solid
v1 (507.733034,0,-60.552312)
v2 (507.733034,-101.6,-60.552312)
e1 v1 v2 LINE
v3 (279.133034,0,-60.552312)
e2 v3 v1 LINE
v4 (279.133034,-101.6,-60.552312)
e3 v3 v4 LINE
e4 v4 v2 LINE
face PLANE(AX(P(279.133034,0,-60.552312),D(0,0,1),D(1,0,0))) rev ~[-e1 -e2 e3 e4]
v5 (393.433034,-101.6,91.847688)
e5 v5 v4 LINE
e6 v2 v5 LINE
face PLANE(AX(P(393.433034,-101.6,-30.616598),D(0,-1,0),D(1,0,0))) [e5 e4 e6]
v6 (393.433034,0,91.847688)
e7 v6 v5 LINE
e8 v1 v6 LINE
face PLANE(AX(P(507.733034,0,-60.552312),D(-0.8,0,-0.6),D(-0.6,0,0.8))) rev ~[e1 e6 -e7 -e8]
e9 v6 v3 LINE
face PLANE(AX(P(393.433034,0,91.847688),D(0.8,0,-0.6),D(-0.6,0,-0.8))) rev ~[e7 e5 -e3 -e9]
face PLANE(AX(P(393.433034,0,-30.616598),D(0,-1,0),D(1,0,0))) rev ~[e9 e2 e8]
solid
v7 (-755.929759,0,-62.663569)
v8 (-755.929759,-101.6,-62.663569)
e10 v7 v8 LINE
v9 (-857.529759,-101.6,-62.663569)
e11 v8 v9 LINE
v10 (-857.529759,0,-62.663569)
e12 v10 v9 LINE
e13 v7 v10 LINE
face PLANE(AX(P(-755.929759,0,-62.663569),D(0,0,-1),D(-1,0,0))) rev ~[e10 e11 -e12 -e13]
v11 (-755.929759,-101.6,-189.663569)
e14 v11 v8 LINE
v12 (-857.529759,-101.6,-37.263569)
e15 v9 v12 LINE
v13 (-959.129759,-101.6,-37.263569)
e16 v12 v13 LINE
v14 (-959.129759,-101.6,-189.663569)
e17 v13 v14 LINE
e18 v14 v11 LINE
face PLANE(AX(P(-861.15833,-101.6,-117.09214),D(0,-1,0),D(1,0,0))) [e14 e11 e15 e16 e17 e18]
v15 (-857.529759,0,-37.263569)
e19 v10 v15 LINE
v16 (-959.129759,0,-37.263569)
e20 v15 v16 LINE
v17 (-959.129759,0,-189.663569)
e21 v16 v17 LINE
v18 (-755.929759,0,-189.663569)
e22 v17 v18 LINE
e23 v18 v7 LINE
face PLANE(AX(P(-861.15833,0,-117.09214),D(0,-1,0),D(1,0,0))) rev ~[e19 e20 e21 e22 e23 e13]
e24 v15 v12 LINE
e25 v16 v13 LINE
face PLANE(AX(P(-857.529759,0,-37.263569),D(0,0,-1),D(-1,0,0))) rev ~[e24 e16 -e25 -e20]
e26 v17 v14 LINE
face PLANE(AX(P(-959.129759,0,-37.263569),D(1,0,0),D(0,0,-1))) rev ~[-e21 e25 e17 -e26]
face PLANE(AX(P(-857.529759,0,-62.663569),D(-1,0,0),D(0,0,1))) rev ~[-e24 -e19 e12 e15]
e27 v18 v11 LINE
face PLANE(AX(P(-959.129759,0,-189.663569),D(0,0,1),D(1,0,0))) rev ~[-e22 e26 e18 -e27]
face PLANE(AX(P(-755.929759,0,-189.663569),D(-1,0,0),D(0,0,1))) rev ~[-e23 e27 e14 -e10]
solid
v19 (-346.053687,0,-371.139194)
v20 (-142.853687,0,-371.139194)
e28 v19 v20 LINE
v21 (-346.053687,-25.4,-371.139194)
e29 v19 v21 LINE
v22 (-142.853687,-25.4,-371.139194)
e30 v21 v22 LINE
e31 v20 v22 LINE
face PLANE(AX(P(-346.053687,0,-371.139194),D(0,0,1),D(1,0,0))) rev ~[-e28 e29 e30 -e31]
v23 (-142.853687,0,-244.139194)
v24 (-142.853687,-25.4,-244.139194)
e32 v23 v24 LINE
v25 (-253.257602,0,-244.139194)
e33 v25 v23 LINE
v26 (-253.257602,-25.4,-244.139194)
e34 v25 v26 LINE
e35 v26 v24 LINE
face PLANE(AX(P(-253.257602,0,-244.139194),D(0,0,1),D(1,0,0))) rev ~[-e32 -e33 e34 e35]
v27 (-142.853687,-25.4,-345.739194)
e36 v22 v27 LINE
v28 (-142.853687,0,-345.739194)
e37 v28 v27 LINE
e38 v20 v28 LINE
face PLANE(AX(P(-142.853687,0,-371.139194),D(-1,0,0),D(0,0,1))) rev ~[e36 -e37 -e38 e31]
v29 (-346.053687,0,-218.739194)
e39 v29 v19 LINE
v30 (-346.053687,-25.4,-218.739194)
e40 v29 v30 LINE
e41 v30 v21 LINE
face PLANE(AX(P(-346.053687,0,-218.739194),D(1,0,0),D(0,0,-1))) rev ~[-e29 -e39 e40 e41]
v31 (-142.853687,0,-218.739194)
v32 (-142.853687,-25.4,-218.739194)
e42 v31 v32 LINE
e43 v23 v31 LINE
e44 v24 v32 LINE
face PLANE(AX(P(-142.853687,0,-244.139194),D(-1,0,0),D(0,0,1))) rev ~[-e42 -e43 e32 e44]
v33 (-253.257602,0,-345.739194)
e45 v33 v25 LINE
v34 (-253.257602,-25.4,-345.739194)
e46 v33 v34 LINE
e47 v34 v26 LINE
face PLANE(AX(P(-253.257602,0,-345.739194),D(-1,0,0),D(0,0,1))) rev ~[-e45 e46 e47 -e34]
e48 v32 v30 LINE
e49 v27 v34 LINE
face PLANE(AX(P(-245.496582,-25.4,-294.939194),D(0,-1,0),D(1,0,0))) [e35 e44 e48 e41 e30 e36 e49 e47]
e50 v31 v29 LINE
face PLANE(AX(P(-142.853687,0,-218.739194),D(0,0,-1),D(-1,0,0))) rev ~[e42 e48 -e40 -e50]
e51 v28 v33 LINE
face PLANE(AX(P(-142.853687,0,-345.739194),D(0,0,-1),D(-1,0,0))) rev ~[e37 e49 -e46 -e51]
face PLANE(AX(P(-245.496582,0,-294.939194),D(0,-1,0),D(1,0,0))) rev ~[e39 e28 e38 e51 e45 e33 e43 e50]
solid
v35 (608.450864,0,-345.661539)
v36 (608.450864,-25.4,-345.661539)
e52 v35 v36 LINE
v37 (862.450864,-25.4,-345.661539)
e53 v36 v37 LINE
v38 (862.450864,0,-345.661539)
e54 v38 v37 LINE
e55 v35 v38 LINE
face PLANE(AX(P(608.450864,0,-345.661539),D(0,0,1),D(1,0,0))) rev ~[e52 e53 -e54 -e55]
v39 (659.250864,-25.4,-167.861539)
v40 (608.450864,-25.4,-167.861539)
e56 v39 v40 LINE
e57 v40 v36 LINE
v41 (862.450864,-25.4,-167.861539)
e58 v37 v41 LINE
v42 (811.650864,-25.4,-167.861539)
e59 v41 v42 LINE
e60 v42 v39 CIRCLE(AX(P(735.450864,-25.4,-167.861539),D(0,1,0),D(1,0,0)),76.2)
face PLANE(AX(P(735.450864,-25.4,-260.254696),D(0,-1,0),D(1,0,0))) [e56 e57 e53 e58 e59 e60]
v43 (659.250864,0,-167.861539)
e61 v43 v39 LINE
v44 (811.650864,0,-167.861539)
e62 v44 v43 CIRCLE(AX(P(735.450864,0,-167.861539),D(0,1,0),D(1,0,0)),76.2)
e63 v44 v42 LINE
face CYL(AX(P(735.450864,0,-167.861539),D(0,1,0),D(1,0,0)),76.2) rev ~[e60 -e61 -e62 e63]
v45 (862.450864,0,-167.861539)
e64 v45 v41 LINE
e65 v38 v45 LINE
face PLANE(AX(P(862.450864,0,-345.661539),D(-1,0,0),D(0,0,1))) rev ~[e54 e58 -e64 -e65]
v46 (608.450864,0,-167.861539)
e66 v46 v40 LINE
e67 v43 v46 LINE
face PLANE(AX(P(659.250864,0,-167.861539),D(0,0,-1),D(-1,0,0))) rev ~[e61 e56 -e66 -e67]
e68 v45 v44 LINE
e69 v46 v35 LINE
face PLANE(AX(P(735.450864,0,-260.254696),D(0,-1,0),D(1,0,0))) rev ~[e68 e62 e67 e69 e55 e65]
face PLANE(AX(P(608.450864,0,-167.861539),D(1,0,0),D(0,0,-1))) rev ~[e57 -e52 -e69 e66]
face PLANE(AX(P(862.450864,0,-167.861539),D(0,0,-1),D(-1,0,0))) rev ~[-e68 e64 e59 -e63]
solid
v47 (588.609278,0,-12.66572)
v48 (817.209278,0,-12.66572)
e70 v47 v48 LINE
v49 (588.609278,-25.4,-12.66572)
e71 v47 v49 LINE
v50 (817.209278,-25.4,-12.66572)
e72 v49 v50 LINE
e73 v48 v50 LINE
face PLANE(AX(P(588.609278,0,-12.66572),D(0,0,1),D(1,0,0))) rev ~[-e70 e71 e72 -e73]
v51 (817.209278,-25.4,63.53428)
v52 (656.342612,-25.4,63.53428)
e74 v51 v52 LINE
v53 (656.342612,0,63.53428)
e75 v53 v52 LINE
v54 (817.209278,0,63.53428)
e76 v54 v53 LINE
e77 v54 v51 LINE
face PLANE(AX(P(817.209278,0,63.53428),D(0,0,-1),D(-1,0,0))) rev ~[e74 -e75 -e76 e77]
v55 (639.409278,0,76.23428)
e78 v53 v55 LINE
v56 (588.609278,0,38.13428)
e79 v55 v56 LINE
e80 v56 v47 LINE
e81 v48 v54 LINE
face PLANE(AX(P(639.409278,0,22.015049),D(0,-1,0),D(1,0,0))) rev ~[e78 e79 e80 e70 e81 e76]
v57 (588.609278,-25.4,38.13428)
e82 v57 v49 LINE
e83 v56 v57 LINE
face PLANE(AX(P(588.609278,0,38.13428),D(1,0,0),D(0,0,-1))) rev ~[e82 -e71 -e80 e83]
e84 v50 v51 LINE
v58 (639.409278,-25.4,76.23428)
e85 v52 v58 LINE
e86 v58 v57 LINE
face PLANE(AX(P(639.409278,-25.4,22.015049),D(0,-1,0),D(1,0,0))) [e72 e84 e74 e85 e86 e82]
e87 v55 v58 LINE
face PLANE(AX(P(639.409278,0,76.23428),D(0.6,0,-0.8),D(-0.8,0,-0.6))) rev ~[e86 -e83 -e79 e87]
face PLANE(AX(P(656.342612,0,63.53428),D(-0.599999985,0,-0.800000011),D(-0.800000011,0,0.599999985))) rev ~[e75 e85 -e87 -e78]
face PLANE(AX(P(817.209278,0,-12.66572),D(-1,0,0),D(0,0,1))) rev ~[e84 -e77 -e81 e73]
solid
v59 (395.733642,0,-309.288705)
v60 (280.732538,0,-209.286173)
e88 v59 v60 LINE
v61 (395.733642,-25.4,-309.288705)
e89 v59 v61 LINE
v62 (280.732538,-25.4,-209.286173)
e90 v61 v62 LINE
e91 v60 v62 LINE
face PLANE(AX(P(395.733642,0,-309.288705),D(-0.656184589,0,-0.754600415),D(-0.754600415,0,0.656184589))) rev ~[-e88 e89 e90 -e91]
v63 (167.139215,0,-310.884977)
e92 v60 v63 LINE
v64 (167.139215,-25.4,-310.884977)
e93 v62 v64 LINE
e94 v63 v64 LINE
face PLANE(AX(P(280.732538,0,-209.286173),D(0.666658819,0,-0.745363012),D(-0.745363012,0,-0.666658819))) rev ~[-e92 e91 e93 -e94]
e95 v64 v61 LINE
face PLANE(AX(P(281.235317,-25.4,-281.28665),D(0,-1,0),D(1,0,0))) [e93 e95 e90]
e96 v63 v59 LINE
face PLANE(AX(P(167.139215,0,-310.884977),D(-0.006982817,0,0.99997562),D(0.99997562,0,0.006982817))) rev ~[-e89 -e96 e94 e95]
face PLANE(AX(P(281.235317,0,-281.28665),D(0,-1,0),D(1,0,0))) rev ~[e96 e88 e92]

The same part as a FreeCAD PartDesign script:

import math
import FreeCAD as App
import Part
import Sketcher

V = App.Vector
Q = App.Units.Quantity

doc = App.newDocument("Part")
body = doc.addObject("PartDesign::Body", "Body")

# Sketch on XZ plane
sketch1 = body.newObject("Sketcher::SketchObject", "Sketch")
sketch1.AttachmentSupport = (doc.getObject("XZ_Plane"), [""])
sketch1.MapMode = "FlatFace"
sketch1.addGeometry(Part.LineSegment(V(279, -61, 0), V(508, -61, 0)), False)
sketch1.addGeometry(Part.LineSegment(V(508, -61, 0), V(393, 92, 0)), False)
sketch1.addGeometry(Part.LineSegment(V(393, 92, 0), V(279, -61, 0)), False)
sketch1.addConstraint(Sketcher.Constraint("Coincident", 0, 2, 1, 1))
sketch1.addConstraint(Sketcher.Constraint("Coincident", 1, 2, 2, 1))
sketch1.addConstraint(Sketcher.Constraint("Coincident", 2, 2, 0, 1))
sketch1.addConstraint(Sketcher.Constraint("Horizontal", 0))
sketch1.addConstraint(Sketcher.Constraint("Equal", 1, 2))
sketch1.addConstraint(Sketcher.Constraint("DistanceX", 0, 1, 0, 2, Q("9 in")))
sketch1.addConstraint(Sketcher.Constraint("DistanceY", 0, 2, 1, 2, Q("6 in")))
sketch1.addConstraint(Sketcher.Constraint("DistanceY", -1, 1, 1, 2, Q("91.847688 mm")))
sketch1.addConstraint(Sketcher.Constraint("DistanceX", -1, 1, 0, 2, Q("507.733034 mm")))
pad1 = body.newObject("PartDesign::Pad", "Pad")
pad1.Profile = sketch1
pad1.Length = Q("4 in")
body2 = doc.addObject("PartDesign::Body", "Body001")

# Sketch on XZ plane
sketch2 = body2.newObject("Sketcher::SketchObject", "Sketch001")
sketch2.AttachmentSupport = (doc.getObject("XZ_Plane001"), [""])
sketch2.MapMode = "FlatFace"
sketch2.addGeometry(Part.LineSegment(V(-959, -190, 0), V(-756, -190, 0)), False)
sketch2.addGeometry(Part.LineSegment(V(-756, -190, 0), V(-756, -63, 0)), False)
sketch2.addGeometry(Part.LineSegment(V(-756, -63, 0), V(-858, -63, 0)), False)
sketch2.addGeometry(Part.LineSegment(V(-858, -63, 0), V(-858, -37, 0)), False)
sketch2.addGeometry(Part.LineSegment(V(-858, -37, 0), V(-959, -37, 0)), False)
sketch2.addGeometry(Part.LineSegment(V(-959, -37, 0), V(-959, -190, 0)), False)
sketch2.addConstraint(Sketcher.Constraint("Coincident", 0, 2, 1, 1))
sketch2.addConstraint(Sketcher.Constraint("Coincident", 1, 2, 2, 1))
sketch2.addConstraint(Sketcher.Constraint("Coincident", 2, 2, 3, 1))
sketch2.addConstraint(Sketcher.Constraint("Coincident", 3, 2, 4, 1))
sketch2.addConstraint(Sketcher.Constraint("Coincident", 4, 2, 5, 1))
sketch2.addConstraint(Sketcher.Constraint("Coincident", 5, 2, 0, 1))
sketch2.addConstraint(Sketcher.Constraint("Horizontal", 0))
sketch2.addConstraint(Sketcher.Constraint("Vertical", 1))
sketch2.addConstraint(Sketcher.Constraint("Horizontal", 2))
sketch2.addConstraint(Sketcher.Constraint("Vertical", 3))
sketch2.addConstraint(Sketcher.Constraint("Horizontal", 4))
sketch2.addConstraint(Sketcher.Constraint("Vertical", 5))
sketch2.addConstraint(Sketcher.Constraint("Equal", 2, 4))
sketch2.addConstraint(Sketcher.Constraint("DistanceX", 0, 1, 0, 2, Q("8 in")))
sketch2.addConstraint(Sketcher.Constraint("DistanceY", 1, 1, 1, 2, Q("5 in")))
sketch2.addConstraint(Sketcher.Constraint("DistanceY", 3, 1, 3, 2, Q("1 in")))
sketch2.addConstraint(Sketcher.Constraint("DistanceX", 0, 2, -1, 1, Q("755.929759 mm")))
sketch2.addConstraint(Sketcher.Constraint("DistanceY", 0, 2, -1, 1, Q("189.663569 mm")))
pad2 = body2.newObject("PartDesign::Pad", "Pad001")
pad2.Profile = sketch2
pad2.Length = Q("4 in")
body3 = doc.addObject("PartDesign::Body", "Body002")

# Sketch on XZ plane
sketch3 = body3.newObject("Sketcher::SketchObject", "Sketch002")
sketch3.AttachmentSupport = (doc.getObject("XZ_Plane002"), [""])
sketch3.MapMode = "FlatFace"
sketch3.addGeometry(Part.LineSegment(V(-346, -371, 0), V(-143, -371, 0)), False)
sketch3.addGeometry(Part.LineSegment(V(-143, -371, 0), V(-143, -346, 0)), False)
sketch3.addGeometry(Part.LineSegment(V(-143, -346, 0), V(-253, -346, 0)), False)
sketch3.addGeometry(Part.LineSegment(V(-253, -346, 0), V(-253, -244, 0)), False)
sketch3.addGeometry(Part.LineSegment(V(-253, -244, 0), V(-143, -244, 0)), False)
sketch3.addGeometry(Part.LineSegment(V(-143, -244, 0), V(-143, -219, 0)), False)
sketch3.addGeometry(Part.LineSegment(V(-143, -219, 0), V(-346, -219, 0)), False)
sketch3.addGeometry(Part.LineSegment(V(-346, -219, 0), V(-346, -371, 0)), False)
sketch3.addConstraint(Sketcher.Constraint("Coincident", 0, 2, 1, 1))
sketch3.addConstraint(Sketcher.Constraint("Coincident", 1, 2, 2, 1))
sketch3.addConstraint(Sketcher.Constraint("Coincident", 2, 2, 3, 1))
sketch3.addConstraint(Sketcher.Constraint("Coincident", 3, 2, 4, 1))
sketch3.addConstraint(Sketcher.Constraint("Coincident", 4, 2, 5, 1))
sketch3.addConstraint(Sketcher.Constraint("Coincident", 5, 2, 6, 1))
sketch3.addConstraint(Sketcher.Constraint("Coincident", 6, 2, 7, 1))
sketch3.addConstraint(Sketcher.Constraint("Coincident", 7, 2, 0, 1))
sketch3.addConstraint(Sketcher.Constraint("Horizontal", 0))
sketch3.addConstraint(Sketcher.Constraint("Vertical", 1))
sketch3.addConstraint(Sketcher.Constraint("Horizontal", 2))
sketch3.addConstraint(Sketcher.Constraint("Vertical", 3))
sketch3.addConstraint(Sketcher.Constraint("Horizontal", 4))
sketch3.addConstraint(Sketcher.Constraint("Vertical", 5))
sketch3.addConstraint(Sketcher.Constraint("Horizontal", 6))
sketch3.addConstraint(Sketcher.Constraint("Vertical", 7))
sketch3.addConstraint(Sketcher.Constraint("Vertical", 1, 2, 4, 2))
sketch3.addConstraint(Sketcher.Constraint("Equal", 1, 5))
sketch3.addConstraint(Sketcher.Constraint("DistanceX", 0, 1, 0, 2, Q("8 in")))
sketch3.addConstraint(Sketcher.Constraint("DistanceY", 1, 1, 1, 2, Q("1 in")))
sketch3.addConstraint(Sketcher.Constraint("DistanceY", 3, 1, 3, 2, Q("4 in")))
sketch3.addConstraint(Sketcher.Constraint("DistanceX", 2, 2, -1, 1, Q("253.257602 mm")))
sketch3.addConstraint(Sketcher.Constraint("DistanceX", 2, 2, 2, 1, Q("110.403915 mm")))
sketch3.addConstraint(Sketcher.Constraint("DistanceY", 0, 2, -1, 1, Q("371.139194 mm")))
pad3 = body3.newObject("PartDesign::Pad", "Pad002")
pad3.Profile = sketch3
pad3.Length = Q("1 in")
body4 = doc.addObject("PartDesign::Body", "Body003")

# Sketch on XZ plane
sketch4 = body4.newObject("Sketcher::SketchObject", "Sketch003")
sketch4.AttachmentSupport = (doc.getObject("XZ_Plane003"), [""])
sketch4.MapMode = "FlatFace"
sketch4.addGeometry(Part.LineSegment(V(608, -346, 0), V(862, -346, 0)), False)
sketch4.addGeometry(Part.LineSegment(V(862, -346, 0), V(862, -168, 0)), False)
sketch4.addGeometry(Part.LineSegment(V(862, -168, 0), V(812, -168, 0)), False)
sketch4.addGeometry(Part.ArcOfCircle(Part.Circle(V(735, -168, 0), V(0, 0, 1), 76), math.radians(180), math.radians(360)), False)
sketch4.addGeometry(Part.LineSegment(V(659, -168, 0), V(608, -168, 0)), False)
sketch4.addGeometry(Part.LineSegment(V(608, -168, 0), V(608, -346, 0)), False)
sketch4.addConstraint(Sketcher.Constraint("Coincident", 0, 2, 1, 1))
sketch4.addConstraint(Sketcher.Constraint("Coincident", 1, 2, 2, 1))
sketch4.addConstraint(Sketcher.Constraint("Coincident", 2, 2, 3, 2))
sketch4.addConstraint(Sketcher.Constraint("Coincident", 3, 1, 4, 1))
sketch4.addConstraint(Sketcher.Constraint("Coincident", 4, 2, 5, 1))
sketch4.addConstraint(Sketcher.Constraint("Coincident", 5, 2, 0, 1))
sketch4.addConstraint(Sketcher.Constraint("Horizontal", 0))
sketch4.addConstraint(Sketcher.Constraint("Vertical", 1))
sketch4.addConstraint(Sketcher.Constraint("Horizontal", 2))
sketch4.addConstraint(Sketcher.Constraint("Horizontal", 4))
sketch4.addConstraint(Sketcher.Constraint("Vertical", 5))
sketch4.addConstraint(Sketcher.Constraint("Horizontal", 3, 3, 1, 2))
sketch4.addConstraint(Sketcher.Constraint("Horizontal", 2, 2, 3, 1))
sketch4.addConstraint(Sketcher.Constraint("Equal", 2, 4))
sketch4.addConstraint(Sketcher.Constraint("Radius", 3, Q("3 in")))
sketch4.addConstraint(Sketcher.Constraint("DistanceX", 0, 1, 0, 2, Q("10 in")))
sketch4.addConstraint(Sketcher.Constraint("DistanceY", 1, 1, 1, 2, Q("7 in")))
sketch4.addConstraint(Sketcher.Constraint("DistanceY", 3, 3, -1, 1, Q("167.861539 mm")))
sketch4.addConstraint(Sketcher.Constraint("DistanceX", -1, 1, 3, 3, Q("735.450864 mm")))
pad4 = body4.newObject("PartDesign::Pad", "Pad003")
pad4.Profile = sketch4
pad4.Length = Q("1 in")
body5 = doc.addObject("PartDesign::Body", "Body004")

# Sketch on XZ plane
sketch5 = body5.newObject("Sketcher::SketchObject", "Sketch004")
sketch5.AttachmentSupport = (doc.getObject("XZ_Plane004"), [""])
sketch5.MapMode = "FlatFace"
sketch5.addGeometry(Part.LineSegment(V(589, -13, 0), V(817, -13, 0)), False)
sketch5.addGeometry(Part.LineSegment(V(817, -13, 0), V(817, 64, 0)), False)
sketch5.addGeometry(Part.LineSegment(V(817, 64, 0), V(656, 64, 0)), False)
sketch5.addGeometry(Part.LineSegment(V(656, 64, 0), V(639, 76, 0)), False)
sketch5.addGeometry(Part.LineSegment(V(639, 76, 0), V(589, 38, 0)), False)
sketch5.addGeometry(Part.LineSegment(V(589, 38, 0), V(589, -13, 0)), False)
sketch5.addConstraint(Sketcher.Constraint("Coincident", 0, 2, 1, 1))
sketch5.addConstraint(Sketcher.Constraint("Coincident", 1, 2, 2, 1))
sketch5.addConstraint(Sketcher.Constraint("Coincident", 2, 2, 3, 1))
sketch5.addConstraint(Sketcher.Constraint("Coincident", 3, 2, 4, 1))
sketch5.addConstraint(Sketcher.Constraint("Coincident", 4, 2, 5, 1))
sketch5.addConstraint(Sketcher.Constraint("Coincident", 5, 2, 0, 1))
sketch5.addConstraint(Sketcher.Constraint("Horizontal", 0))
sketch5.addConstraint(Sketcher.Constraint("Vertical", 1))
sketch5.addConstraint(Sketcher.Constraint("Horizontal", 2))
sketch5.addConstraint(Sketcher.Constraint("Vertical", 5))
sketch5.addConstraint(Sketcher.Constraint("DistanceX", 0, 1, 0, 2, Q("9 in")))
sketch5.addConstraint(Sketcher.Constraint("DistanceY", 1, 1, 1, 2, Q("3 in")))
sketch5.addConstraint(Sketcher.Constraint("DistanceY", 5, 2, 5, 1, Q("2 in")))
sketch5.addConstraint(Sketcher.Constraint("DistanceX", 3, 2, 1, 2, Q("7 in")))
sketch5.addConstraint(Sketcher.Constraint("Distance", 4, Q("2.5 in")))
sketch5.addConstraint(Sketcher.Constraint("DistanceX", 2, 2, 2, 1, Q("160.866666 mm")))
sketch5.addConstraint(Sketcher.Constraint("DistanceX", -1, 1, 0, 2, Q("817.209278 mm")))
sketch5.addConstraint(Sketcher.Constraint("DistanceY", 0, 2, -1, 1, Q("12.66572 mm")))
pad5 = body5.newObject("PartDesign::Pad", "Pad004")
pad5.Profile = sketch5
pad5.Length = Q("1 in")
body6 = doc.addObject("PartDesign::Body", "Body005")

# Sketch on XZ plane
sketch6 = body6.newObject("Sketcher::SketchObject", "Sketch005")
sketch6.AttachmentSupport = (doc.getObject("XZ_Plane005"), [""])
sketch6.MapMode = "FlatFace"
sketch6.addGeometry(Part.LineSegment(V(281, -209, 0), V(167, -311, 0)), False)
sketch6.addGeometry(Part.LineSegment(V(167, -311, 0), V(396, -309, 0)), False)
sketch6.addGeometry(Part.LineSegment(V(396, -309, 0), V(281, -209, 0)), False)
sketch6.addConstraint(Sketcher.Constraint("Coincident", 0, 2, 1, 1))
sketch6.addConstraint(Sketcher.Constraint("Coincident", 1, 2, 2, 1))
sketch6.addConstraint(Sketcher.Constraint("Coincident", 2, 2, 0, 1))
sketch6.addConstraint(Sketcher.Constraint("Equal", 0, 2))
sketch6.addConstraint(Sketcher.Constraint("Distance", 0, Q("6 in")))
sketch6.addConstraint(Sketcher.Constraint("Distance", 1, Q("9 in")))
sketch6.addConstraint(Sketcher.Constraint("DistanceX", -1, 1, 1, 2, Q("395.733642 mm")))
sketch6.addConstraint(Sketcher.Constraint("DistanceX", -1, 1, 2, 2, Q("280.732538 mm")))
sketch6.addConstraint(Sketcher.Constraint("DistanceY", 0, 2, -1, 1, Q("310.884977 mm")))
pad6 = body6.newObject("PartDesign::Pad", "Pad005")
pad6.Profile = sketch6
pad6.Length = Q("1 in")

doc.recompute()
